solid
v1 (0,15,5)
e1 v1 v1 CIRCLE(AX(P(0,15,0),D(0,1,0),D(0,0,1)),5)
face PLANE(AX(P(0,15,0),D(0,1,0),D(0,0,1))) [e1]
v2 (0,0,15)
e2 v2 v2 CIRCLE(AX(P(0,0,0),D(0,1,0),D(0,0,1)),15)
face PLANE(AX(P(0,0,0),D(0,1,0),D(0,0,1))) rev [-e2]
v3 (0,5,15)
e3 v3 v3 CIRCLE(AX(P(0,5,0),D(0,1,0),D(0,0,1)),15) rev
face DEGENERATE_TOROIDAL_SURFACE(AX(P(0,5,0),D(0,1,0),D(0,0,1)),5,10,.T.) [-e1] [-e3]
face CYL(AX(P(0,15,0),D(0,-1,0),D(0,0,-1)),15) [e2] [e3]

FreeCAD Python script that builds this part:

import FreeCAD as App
import Part
import Sketcher


def edges_at(feature, points):
    """Names of the edges that pass closest to the given points."""
    edges = feature.Shape.Edges
    near = lambda p: min(range(len(edges)), key=lambda i: edges[i].distToShape(Part.Vertex(*p))[0])
    return sorted({f"Edge{near(p) + 1}" for p in points})

doc = App.newDocument("Part")
params = doc.addObject("Spreadsheet::Sheet", "Params")
for row, (alias, value) in enumerate([
    ("sketch1_diameter", "30 mm"),
    ("pad1_length", "15 mm"),
    ("fillet_radius", "10 mm"),
], start=1):
    params.set(f"A{row}", alias)
    params.set(f"B{row}", "=" + value)
    params.setAlias(f"B{row}", alias)

body = doc.addObject("PartDesign::Body", "Body")

# Sketch on XZ plane
sketch1 = body.newObject("Sketcher::SketchObject", "Sketch")
sketch1.AttachmentSupport = (doc.getObject("XZ_Plane"), [""])
sketch1.MapMode = "FlatFace"
sketch1.addGeometry(Part.Circle(App.Vector(0, 0, 0), App.Vector(0, 0, 1), 15), False)
sketch1.addConstraint([
    Sketcher.Constraint("Coincident", 0, 3, -1, 1),
    Sketcher.Constraint("Diameter", 0, 30.0),
])
sketch1.setExpression("Constraints[1]", "Params.sketch1_diameter")
pad1 = body.newObject("PartDesign::Pad", "Pad")
pad1.Profile = sketch1
pad1.setExpression("Length", "Params.pad1_length")
pad1.Reversed = True
doc.recompute()

fillet = body.newObject("PartDesign::Fillet", "Fillet")
fillet.Base = (pad1, edges_at(pad1, [(0, 15, -15)]))
fillet.setExpression("Radius", "Params.fillet_radius")

doc.recompute()
